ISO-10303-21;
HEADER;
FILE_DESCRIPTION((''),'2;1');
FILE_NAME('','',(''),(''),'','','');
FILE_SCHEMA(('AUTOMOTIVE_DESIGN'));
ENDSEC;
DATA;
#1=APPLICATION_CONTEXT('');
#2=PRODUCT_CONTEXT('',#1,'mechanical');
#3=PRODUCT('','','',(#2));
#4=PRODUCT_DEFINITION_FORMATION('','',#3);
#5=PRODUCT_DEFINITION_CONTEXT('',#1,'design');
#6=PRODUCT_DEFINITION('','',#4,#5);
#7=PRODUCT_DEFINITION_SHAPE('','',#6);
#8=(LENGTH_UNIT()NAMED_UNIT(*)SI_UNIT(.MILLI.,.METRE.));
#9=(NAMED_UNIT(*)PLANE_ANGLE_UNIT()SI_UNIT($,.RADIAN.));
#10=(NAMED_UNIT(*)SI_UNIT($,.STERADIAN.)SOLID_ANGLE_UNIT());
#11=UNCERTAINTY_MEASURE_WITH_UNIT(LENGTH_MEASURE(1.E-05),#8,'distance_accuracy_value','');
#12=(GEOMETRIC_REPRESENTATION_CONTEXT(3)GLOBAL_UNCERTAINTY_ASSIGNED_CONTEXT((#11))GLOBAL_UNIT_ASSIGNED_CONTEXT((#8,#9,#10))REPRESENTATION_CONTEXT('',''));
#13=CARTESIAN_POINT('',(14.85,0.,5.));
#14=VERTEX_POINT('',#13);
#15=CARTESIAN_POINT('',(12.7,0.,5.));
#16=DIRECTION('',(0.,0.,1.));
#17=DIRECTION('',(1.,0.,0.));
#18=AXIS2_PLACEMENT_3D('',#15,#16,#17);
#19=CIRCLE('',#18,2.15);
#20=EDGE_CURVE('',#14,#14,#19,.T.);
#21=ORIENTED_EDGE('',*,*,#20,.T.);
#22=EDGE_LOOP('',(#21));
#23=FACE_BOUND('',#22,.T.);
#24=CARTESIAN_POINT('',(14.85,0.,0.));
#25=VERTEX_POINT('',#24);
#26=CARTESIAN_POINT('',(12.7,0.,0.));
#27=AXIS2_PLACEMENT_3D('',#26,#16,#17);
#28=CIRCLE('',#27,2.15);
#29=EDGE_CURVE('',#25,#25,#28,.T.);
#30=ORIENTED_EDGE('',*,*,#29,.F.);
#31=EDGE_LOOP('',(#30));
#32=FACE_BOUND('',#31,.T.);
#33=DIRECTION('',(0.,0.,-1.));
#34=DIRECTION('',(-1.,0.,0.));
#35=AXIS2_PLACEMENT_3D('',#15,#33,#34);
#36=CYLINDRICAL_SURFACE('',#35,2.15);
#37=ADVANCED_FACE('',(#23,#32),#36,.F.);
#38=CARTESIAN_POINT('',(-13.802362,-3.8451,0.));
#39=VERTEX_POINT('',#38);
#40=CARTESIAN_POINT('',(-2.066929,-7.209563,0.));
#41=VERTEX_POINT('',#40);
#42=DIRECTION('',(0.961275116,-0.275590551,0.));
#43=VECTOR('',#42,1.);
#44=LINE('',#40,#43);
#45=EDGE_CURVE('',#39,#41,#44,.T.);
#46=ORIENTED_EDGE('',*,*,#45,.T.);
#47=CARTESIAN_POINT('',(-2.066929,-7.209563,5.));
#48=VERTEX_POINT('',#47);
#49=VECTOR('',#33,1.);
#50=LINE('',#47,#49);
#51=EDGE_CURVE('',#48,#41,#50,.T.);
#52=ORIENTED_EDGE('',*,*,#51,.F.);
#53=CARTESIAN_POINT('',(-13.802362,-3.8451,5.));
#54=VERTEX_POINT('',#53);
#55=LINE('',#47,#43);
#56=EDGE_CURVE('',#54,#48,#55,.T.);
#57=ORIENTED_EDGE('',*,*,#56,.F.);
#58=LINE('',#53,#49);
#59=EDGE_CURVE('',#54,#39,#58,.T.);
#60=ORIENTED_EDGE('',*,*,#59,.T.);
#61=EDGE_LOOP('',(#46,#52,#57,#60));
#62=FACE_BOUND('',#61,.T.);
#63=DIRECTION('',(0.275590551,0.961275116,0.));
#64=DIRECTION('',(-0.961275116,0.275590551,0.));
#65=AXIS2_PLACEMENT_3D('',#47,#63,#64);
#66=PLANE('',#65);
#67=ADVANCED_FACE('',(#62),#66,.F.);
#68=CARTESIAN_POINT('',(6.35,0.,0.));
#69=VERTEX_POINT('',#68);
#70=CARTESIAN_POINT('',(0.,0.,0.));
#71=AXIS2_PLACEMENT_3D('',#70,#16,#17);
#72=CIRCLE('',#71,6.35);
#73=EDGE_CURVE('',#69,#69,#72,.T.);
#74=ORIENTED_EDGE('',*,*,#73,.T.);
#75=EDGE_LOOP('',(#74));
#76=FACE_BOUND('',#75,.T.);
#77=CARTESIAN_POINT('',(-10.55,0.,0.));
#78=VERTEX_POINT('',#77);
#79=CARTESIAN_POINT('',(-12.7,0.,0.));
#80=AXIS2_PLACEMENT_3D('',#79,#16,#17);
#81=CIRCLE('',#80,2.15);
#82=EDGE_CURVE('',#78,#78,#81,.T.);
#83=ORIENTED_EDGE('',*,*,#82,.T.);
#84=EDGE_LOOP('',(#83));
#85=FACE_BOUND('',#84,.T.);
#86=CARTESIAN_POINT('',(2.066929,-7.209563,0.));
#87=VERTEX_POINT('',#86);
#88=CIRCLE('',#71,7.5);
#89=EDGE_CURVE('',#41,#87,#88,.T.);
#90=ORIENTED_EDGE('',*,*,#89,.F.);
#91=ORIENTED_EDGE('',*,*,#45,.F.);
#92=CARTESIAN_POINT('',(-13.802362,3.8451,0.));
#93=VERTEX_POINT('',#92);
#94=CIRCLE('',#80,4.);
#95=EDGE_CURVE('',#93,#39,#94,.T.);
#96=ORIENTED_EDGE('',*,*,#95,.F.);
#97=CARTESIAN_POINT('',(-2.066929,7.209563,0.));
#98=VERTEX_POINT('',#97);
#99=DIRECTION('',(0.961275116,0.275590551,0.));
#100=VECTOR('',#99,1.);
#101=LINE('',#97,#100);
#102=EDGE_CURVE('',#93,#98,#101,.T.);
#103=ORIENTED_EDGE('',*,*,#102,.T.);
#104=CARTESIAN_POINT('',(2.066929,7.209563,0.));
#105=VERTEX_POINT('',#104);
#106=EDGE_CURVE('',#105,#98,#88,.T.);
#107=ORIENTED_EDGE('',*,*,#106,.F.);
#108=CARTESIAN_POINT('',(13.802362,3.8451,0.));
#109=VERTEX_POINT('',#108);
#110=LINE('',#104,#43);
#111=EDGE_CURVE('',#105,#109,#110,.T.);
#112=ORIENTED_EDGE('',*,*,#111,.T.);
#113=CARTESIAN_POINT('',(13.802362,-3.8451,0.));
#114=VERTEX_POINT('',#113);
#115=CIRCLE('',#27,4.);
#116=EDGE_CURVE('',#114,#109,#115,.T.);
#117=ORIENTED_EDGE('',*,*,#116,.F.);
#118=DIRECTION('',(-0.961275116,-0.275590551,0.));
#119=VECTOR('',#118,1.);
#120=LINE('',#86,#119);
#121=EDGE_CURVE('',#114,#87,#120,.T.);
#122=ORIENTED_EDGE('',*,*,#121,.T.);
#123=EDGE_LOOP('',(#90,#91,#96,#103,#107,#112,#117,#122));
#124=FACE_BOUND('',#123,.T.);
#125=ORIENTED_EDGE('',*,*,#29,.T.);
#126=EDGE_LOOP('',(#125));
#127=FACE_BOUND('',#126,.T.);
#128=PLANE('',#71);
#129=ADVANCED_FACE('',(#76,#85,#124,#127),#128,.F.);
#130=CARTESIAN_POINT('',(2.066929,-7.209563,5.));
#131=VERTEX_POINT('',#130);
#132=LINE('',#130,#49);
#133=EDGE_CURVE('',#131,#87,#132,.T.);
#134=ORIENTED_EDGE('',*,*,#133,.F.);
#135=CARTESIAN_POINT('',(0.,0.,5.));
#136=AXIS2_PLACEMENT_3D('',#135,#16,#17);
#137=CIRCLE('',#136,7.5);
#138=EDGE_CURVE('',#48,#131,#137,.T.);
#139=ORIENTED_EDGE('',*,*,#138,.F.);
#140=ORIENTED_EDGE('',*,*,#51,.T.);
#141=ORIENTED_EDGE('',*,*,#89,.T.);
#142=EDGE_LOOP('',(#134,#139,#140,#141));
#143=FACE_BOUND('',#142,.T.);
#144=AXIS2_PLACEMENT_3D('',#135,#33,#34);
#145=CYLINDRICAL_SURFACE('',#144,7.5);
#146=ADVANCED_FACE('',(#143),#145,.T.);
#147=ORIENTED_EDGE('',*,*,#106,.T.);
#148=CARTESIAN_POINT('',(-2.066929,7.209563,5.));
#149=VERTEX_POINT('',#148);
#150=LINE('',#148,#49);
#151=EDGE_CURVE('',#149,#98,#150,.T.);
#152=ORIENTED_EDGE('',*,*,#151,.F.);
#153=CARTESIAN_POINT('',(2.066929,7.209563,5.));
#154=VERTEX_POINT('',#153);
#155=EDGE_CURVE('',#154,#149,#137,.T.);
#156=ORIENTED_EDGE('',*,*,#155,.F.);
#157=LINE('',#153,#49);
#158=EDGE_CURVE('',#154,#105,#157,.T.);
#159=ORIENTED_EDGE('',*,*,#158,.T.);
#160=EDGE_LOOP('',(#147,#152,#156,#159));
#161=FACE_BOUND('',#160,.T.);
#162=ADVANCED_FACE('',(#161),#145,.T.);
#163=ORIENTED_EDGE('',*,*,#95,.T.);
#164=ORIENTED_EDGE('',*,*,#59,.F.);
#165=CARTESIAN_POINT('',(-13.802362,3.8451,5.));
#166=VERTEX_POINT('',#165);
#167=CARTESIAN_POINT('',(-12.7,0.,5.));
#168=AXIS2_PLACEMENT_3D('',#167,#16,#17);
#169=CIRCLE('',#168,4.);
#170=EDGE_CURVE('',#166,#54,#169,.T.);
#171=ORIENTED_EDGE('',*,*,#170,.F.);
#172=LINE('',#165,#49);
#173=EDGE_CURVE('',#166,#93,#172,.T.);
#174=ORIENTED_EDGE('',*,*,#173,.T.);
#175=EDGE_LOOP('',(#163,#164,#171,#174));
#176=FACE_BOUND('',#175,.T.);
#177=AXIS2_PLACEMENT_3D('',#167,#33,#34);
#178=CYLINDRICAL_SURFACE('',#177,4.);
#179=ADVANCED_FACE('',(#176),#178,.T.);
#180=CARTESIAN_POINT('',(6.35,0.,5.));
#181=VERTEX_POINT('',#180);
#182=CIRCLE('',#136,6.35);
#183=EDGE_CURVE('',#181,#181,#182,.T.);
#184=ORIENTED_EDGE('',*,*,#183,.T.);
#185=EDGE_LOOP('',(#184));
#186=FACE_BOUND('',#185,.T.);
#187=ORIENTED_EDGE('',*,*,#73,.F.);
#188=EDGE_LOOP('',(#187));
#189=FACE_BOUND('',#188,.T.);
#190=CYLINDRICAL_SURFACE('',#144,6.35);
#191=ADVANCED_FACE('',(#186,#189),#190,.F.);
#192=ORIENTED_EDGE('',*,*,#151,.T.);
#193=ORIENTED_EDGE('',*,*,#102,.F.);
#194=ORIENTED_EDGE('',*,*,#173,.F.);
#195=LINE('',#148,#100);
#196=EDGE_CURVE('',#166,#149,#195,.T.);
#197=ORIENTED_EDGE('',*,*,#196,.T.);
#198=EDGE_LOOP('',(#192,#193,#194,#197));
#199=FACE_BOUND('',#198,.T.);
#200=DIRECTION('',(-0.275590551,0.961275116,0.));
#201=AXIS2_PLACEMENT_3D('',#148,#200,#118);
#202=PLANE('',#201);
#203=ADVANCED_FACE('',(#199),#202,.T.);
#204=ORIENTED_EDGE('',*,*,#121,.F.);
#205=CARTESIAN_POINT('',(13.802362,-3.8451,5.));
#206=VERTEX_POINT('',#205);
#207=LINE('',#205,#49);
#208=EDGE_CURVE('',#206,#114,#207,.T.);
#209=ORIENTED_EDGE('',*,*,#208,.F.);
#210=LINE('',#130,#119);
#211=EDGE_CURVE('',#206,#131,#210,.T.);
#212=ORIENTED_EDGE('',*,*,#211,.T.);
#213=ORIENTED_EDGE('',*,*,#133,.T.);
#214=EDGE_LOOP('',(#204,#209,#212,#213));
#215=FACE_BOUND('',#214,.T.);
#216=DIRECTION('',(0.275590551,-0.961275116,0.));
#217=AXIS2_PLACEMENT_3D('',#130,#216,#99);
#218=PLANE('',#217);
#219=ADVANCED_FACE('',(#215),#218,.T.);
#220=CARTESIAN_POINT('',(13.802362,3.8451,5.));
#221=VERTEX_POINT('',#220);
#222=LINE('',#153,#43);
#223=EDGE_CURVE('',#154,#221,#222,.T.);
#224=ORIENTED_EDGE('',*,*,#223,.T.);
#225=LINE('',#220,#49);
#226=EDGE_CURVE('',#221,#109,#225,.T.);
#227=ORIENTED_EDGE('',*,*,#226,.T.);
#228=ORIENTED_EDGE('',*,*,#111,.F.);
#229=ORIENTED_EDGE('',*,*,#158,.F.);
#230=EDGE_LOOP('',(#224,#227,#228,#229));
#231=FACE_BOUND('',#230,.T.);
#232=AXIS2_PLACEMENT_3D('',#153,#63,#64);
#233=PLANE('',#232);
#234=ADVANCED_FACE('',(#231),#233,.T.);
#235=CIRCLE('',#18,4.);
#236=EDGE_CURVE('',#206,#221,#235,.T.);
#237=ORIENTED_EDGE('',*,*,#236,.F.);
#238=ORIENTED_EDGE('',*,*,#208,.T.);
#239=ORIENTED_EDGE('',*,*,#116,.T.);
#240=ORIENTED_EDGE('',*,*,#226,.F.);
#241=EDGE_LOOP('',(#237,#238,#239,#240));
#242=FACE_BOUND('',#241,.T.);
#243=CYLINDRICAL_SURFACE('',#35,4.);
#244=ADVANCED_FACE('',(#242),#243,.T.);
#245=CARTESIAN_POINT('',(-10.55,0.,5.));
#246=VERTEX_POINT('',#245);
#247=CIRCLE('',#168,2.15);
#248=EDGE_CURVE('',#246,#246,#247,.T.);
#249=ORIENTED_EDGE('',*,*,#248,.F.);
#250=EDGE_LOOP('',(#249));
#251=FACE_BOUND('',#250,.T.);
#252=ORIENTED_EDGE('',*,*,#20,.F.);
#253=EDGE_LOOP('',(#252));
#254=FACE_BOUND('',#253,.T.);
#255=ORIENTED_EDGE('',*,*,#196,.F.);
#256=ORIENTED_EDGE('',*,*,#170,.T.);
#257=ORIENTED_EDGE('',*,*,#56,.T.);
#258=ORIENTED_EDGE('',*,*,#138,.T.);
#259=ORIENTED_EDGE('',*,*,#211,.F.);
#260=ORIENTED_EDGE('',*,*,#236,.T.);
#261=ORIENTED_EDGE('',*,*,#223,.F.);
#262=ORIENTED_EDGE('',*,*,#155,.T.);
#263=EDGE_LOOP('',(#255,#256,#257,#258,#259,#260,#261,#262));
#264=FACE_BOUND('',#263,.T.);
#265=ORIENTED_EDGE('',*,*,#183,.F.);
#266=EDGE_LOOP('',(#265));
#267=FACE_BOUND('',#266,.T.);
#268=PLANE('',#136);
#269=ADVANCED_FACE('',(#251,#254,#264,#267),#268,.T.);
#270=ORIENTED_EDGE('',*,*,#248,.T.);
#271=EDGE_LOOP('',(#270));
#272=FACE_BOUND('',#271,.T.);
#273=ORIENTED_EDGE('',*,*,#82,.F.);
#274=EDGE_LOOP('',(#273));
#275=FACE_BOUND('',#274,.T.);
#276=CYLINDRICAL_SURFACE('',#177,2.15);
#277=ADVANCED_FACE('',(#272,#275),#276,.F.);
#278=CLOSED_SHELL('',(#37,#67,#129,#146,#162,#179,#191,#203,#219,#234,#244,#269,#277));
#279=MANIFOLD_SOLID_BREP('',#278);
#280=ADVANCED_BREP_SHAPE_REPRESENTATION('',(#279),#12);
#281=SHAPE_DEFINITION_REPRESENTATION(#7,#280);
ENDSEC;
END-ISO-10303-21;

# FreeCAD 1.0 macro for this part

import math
import FreeCAD as App
import Part
import Sketcher
from FreeCAD import Vector
Q = App.Units.Quantity

doc = App.newDocument("Part")
params = doc.addObject("Spreadsheet::Sheet", "Params")
for row, (alias, value) in enumerate([
    ("sketch1_radius", "4 mm"),
    ("sketch1_diameter", "4.3 mm"),
    ("sketch1_diameter2", "12.7 mm"),
    ("sketch1_radius2", "7.5 mm"),
    ("pad1_length", "5 mm"),
], start=1):
    params.set(f"A{row}", alias)
    params.set(f"B{row}", "=" + value)
    params.setAlias(f"B{row}", alias)

body = doc.addObject("PartDesign::Body", "Body")

# Sketch on XY plane
sketch1 = body.newObject("Sketcher::SketchObject", "Sketch")
sketch1.AttachmentSupport = (doc.getObject("XY_Plane"), [""])
sketch1.MapMode = "FlatFace"
sketch1.addGeometry([
    Part.LineSegment(Vector(13.802362, 3.8451, 0), Vector(2.066929, 7.209563, 0)),  # 0
    Part.ArcOfCircle(Part.Circle(Vector(0, 0, 0), Vector(0, 0, 1), 7.5), math.radians(74.00279), math.radians(105.99721)),  # 1
    Part.LineSegment(Vector(-2.066929, 7.209563, 0), Vector(-13.802362, 3.8451, 0)),  # 2
    Part.ArcOfCircle(Part.Circle(Vector(-12.7, 0, 0), Vector(0, 0, 1), 4), math.radians(105.99721), math.radians(254.00279)),  # 3
    Part.LineSegment(Vector(-13.802362, -3.8451, 0), Vector(-2.066929, -7.209563, 0)),  # 4
    Part.ArcOfCircle(Part.Circle(Vector(0, 0, 0), Vector(0, 0, 1), 7.5), math.radians(-105.99721), math.radians(-74.00279)),  # 5
    Part.LineSegment(Vector(2.066929, -7.209563, 0), Vector(13.802362, -3.8451, 0)),  # 6
    Part.ArcOfCircle(Part.Circle(Vector(12.7, 0, 0), Vector(0, 0, 1), 4), math.radians(-74.00279), math.radians(74.00279)),  # 7
    Part.Circle(Vector(12.7, 0, 0), Vector(0, 0, 1), 2.15),  # 8
    Part.Circle(Vector(0, 0, 0), Vector(0, 0, 1), 6.35),  # 9
    Part.Circle(Vector(-12.7, 0, 0), Vector(0, 0, 1), 2.15),  # 10
], False)
sketch1.addConstraint([
    Sketcher.Constraint("Tangent", 0, 2, 1, 1),
    Sketcher.Constraint("Tangent", 1, 2, 2, 1),
    Sketcher.Constraint("Tangent", 2, 2, 3, 1),
    Sketcher.Constraint("Tangent", 3, 2, 4, 1),
    Sketcher.Constraint("Tangent", 4, 2, 5, 1),
    Sketcher.Constraint("Tangent", 5, 2, 6, 1),
    Sketcher.Constraint("Tangent", 6, 2, 7, 1),
    Sketcher.Constraint("Tangent", 7, 2, 0, 1),
    Sketcher.Constraint("Coincident", 1, 3, -1, 1),
    Sketcher.Constraint("Coincident", 5, 3, -1, 1),
    Sketcher.Constraint("Coincident", 9, 3, -1, 1),
    Sketcher.Constraint("Coincident", 8, 3, 7, 3),
    Sketcher.Constraint("Coincident", 10, 3, 3, 3),
    Sketcher.Constraint("Equal", 1, 5),
    Sketcher.Constraint("Equal", 3, 7),
    Sketcher.Constraint("Equal", 8, 10),
    Sketcher.Constraint("Symmetric", 3, 3, 7, 3, -1, 1),
    Sketcher.Constraint("PointOnObject", 3, 3, -1),
    Sketcher.Constraint("Radius", 3, Q("4 mm")),
    Sketcher.Constraint("Diameter", 8, Q("4.3 mm")),
    Sketcher.Constraint("Diameter", 9, Q("12.7 mm")),
    Sketcher.Constraint("Radius", 1, Q("7.5 mm")),
    Sketcher.Constraint("DistanceX", 3, 3, -1, 1, Q("12.7 mm")),
])
sketch1.setExpression("Constraints[18]", "Params.sketch1_radius")
sketch1.setExpression("Constraints[19]", "Params.sketch1_diameter")
sketch1.setExpression("Constraints[20]", "Params.sketch1_diameter2")
sketch1.setExpression("Constraints[21]", "Params.sketch1_radius2")
pad1 = body.newObject("PartDesign::Pad", "Pad")
pad1.Profile = sketch1
pad1.setExpression("Length", "Params.pad1_length")

doc.recompute()
